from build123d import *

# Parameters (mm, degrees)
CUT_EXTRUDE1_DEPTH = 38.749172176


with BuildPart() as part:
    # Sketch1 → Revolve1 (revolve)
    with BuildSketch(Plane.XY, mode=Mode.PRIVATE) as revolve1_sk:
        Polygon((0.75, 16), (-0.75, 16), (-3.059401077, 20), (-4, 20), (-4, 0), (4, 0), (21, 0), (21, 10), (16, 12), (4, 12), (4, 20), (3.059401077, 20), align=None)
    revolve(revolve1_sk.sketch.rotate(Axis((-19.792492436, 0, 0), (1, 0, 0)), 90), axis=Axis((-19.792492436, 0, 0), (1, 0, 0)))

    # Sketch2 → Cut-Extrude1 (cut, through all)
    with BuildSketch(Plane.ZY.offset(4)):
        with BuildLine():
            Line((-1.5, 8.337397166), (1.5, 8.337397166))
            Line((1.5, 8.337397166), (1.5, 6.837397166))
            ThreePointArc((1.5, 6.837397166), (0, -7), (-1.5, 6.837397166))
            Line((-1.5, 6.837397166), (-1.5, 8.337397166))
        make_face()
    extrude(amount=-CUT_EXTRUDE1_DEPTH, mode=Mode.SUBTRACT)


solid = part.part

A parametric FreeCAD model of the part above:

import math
import FreeCAD as App
import Part
import Sketcher
Q = App.Units.Quantity


def add_polygon(sketch, points):
    """Adds a closed chain of lines whose ends are joined by coincident constraints."""
    first, n = sketch.GeometryCount, len(points)
    for a, b in zip(points, points[1:] + points[:1]):
        sketch.addGeometry(Part.LineSegment(App.Vector(*a, 0), App.Vector(*b, 0)), False)
    for i in range(n):
        sketch.addConstraint(Sketcher.Constraint("Coincident", first + i, 2, first + (i + 1) % n, 1))

doc = App.newDocument("Part")
body = doc.addObject("PartDesign::Body", "Body")

sketch1 = doc.addObject("Sketcher::SketchObject", "Sketch")
body.addObject(sketch1)
sketch1.AttachmentSupport = (doc.XY_Plane, [""])
sketch1.MapMode = "FlatFace"
add_polygon(sketch1, [(0.8, 16), (-0.8, 16), (-3.1, 20), (-4, 20), (-4, 0), (21, 0), (21, 10), (16, 12), (4, 12), (4, 20), (3.1, 20)])
sketch1.addConstraint(Sketcher.Constraint("Horizontal", 0))
sketch1.addConstraint(Sketcher.Constraint("Horizontal", 2))
sketch1.addConstraint(Sketcher.Constraint("Vertical", 3))
sketch1.addConstraint(Sketcher.Constraint("Horizontal", 4))
sketch1.addConstraint(Sketcher.Constraint("Vertical", 5))
sketch1.addConstraint(Sketcher.Constraint("Horizontal", 7))
sketch1.addConstraint(Sketcher.Constraint("Vertical", 8))
sketch1.addConstraint(Sketcher.Constraint("Horizontal", 9))
sketch1.addConstraint(Sketcher.Constraint("Symmetric", 2, 2, 8, 2, -2))
sketch1.addConstraint(Sketcher.Constraint("PointOnObject", 3, 2, -1))
sketch1.addConstraint(Sketcher.Constraint("Equal", 2, 9))
sketch1.addConstraint(Sketcher.Constraint("Equal", 1, 10))
sketch1.addConstraint(Sketcher.Constraint("DistanceX", 4, 1, 4, 2, Q("25 mm")))
sketch1.addConstraint(Sketcher.Constraint("DistanceX", 7, 2, 7, 1, Q("12 mm")))
sketch1.addConstraint(Sketcher.Constraint("DistanceY", 3, 2, 3, 1, Q("20 mm")))
sketch1.addConstraint(Sketcher.Constraint("DistanceY", 5, 1, 5, 2, Q("10 mm")))
sketch1.addConstraint(Sketcher.Constraint("DistanceY", 8, 1, 8, 2, Q("8 mm")))
sketch1.addConstraint(Sketcher.Constraint("Angle", 1, Q("120 deg")))
sketch1.addConstraint(Sketcher.Constraint("DistanceX", 0, 2, 0, 1, Q("1.5 mm")))
sketch1.addConstraint(Sketcher.Constraint("DistanceY", -1, 1, 0, 2, Q("16 mm")))
sketch1.addConstraint(Sketcher.Constraint("DistanceX", 2, 2, -1, 1, Q("4 mm")))
revolution = doc.addObject("PartDesign::Revolution", "Revolution")
body.addObject(revolution)
revolution.Profile = sketch1
revolution.ReferenceAxis = (sketch1, ["H_Axis"])
revolution.Angle = 360

sketch2 = doc.addObject("Sketcher::SketchObject", "Sketch001")
body.addObject(sketch2)
sketch2.AttachmentSupport = (doc.YZ_Plane, [""])
sketch2.MapMode = "FlatFace"
sketch2.AttachmentOffset = App.Placement(App.Vector(0, 0, -4), App.Rotation())
sketch2.addGeometry(Part.LineSegment(App.Vector(8.3, 1.5, 0), App.Vector(8.3, -1.5, 0)), False)
sketch2.addGeometry(Part.LineSegment(App.Vector(8.3, -1.5, 0), App.Vector(6.8, -1.5, 0)), False)
sketch2.addGeometry(Part.ArcOfCircle(Part.Circle(App.Vector(0, 0, 0), App.Vector(0, 0, 1), 7), math.radians(12), math.radians(348)), False)
sketch2.addGeometry(Part.LineSegment(App.Vector(6.8, 1.5, 0), App.Vector(8.3, 1.5, 0)), False)
sketch2.addConstraint(Sketcher.Constraint("Coincident", 0, 2, 1, 1))
sketch2.addConstraint(Sketcher.Constraint("Coincident", 1, 2, 2, 2))
sketch2.addConstraint(Sketcher.Constraint("Coincident", 2, 1, 3, 1))
sketch2.addConstraint(Sketcher.Constraint("Coincident", 3, 2, 0, 1))
sketch2.addConstraint(Sketcher.Constraint("Vertical", 0))
sketch2.addConstraint(Sketcher.Constraint("Horizontal", 1))
sketch2.addConstraint(Sketcher.Constraint("Horizontal", 3))
sketch2.addConstraint(Sketcher.Constraint("Coincident", 2, 3, -1, 1))
sketch2.addConstraint(Sketcher.Constraint("Vertical", 1, 2, 2, 1))
sketch2.addConstraint(Sketcher.Constraint("Radius", 2, Q("7 mm")))
sketch2.addConstraint(Sketcher.Constraint("DistanceY", 0, 2, 0, 1, Q("3 mm")))
sketch2.addConstraint(Sketcher.Constraint("DistanceX", 1, 2, 1, 1, Q("1.5 mm")))
pocket1 = doc.addObject("PartDesign::Pocket", "Pocket")
body.addObject(pocket1)
pocket1.Profile = sketch2
pocket1.Type = "ThroughAll"
pocket1.Reversed = True

doc.recompute()
